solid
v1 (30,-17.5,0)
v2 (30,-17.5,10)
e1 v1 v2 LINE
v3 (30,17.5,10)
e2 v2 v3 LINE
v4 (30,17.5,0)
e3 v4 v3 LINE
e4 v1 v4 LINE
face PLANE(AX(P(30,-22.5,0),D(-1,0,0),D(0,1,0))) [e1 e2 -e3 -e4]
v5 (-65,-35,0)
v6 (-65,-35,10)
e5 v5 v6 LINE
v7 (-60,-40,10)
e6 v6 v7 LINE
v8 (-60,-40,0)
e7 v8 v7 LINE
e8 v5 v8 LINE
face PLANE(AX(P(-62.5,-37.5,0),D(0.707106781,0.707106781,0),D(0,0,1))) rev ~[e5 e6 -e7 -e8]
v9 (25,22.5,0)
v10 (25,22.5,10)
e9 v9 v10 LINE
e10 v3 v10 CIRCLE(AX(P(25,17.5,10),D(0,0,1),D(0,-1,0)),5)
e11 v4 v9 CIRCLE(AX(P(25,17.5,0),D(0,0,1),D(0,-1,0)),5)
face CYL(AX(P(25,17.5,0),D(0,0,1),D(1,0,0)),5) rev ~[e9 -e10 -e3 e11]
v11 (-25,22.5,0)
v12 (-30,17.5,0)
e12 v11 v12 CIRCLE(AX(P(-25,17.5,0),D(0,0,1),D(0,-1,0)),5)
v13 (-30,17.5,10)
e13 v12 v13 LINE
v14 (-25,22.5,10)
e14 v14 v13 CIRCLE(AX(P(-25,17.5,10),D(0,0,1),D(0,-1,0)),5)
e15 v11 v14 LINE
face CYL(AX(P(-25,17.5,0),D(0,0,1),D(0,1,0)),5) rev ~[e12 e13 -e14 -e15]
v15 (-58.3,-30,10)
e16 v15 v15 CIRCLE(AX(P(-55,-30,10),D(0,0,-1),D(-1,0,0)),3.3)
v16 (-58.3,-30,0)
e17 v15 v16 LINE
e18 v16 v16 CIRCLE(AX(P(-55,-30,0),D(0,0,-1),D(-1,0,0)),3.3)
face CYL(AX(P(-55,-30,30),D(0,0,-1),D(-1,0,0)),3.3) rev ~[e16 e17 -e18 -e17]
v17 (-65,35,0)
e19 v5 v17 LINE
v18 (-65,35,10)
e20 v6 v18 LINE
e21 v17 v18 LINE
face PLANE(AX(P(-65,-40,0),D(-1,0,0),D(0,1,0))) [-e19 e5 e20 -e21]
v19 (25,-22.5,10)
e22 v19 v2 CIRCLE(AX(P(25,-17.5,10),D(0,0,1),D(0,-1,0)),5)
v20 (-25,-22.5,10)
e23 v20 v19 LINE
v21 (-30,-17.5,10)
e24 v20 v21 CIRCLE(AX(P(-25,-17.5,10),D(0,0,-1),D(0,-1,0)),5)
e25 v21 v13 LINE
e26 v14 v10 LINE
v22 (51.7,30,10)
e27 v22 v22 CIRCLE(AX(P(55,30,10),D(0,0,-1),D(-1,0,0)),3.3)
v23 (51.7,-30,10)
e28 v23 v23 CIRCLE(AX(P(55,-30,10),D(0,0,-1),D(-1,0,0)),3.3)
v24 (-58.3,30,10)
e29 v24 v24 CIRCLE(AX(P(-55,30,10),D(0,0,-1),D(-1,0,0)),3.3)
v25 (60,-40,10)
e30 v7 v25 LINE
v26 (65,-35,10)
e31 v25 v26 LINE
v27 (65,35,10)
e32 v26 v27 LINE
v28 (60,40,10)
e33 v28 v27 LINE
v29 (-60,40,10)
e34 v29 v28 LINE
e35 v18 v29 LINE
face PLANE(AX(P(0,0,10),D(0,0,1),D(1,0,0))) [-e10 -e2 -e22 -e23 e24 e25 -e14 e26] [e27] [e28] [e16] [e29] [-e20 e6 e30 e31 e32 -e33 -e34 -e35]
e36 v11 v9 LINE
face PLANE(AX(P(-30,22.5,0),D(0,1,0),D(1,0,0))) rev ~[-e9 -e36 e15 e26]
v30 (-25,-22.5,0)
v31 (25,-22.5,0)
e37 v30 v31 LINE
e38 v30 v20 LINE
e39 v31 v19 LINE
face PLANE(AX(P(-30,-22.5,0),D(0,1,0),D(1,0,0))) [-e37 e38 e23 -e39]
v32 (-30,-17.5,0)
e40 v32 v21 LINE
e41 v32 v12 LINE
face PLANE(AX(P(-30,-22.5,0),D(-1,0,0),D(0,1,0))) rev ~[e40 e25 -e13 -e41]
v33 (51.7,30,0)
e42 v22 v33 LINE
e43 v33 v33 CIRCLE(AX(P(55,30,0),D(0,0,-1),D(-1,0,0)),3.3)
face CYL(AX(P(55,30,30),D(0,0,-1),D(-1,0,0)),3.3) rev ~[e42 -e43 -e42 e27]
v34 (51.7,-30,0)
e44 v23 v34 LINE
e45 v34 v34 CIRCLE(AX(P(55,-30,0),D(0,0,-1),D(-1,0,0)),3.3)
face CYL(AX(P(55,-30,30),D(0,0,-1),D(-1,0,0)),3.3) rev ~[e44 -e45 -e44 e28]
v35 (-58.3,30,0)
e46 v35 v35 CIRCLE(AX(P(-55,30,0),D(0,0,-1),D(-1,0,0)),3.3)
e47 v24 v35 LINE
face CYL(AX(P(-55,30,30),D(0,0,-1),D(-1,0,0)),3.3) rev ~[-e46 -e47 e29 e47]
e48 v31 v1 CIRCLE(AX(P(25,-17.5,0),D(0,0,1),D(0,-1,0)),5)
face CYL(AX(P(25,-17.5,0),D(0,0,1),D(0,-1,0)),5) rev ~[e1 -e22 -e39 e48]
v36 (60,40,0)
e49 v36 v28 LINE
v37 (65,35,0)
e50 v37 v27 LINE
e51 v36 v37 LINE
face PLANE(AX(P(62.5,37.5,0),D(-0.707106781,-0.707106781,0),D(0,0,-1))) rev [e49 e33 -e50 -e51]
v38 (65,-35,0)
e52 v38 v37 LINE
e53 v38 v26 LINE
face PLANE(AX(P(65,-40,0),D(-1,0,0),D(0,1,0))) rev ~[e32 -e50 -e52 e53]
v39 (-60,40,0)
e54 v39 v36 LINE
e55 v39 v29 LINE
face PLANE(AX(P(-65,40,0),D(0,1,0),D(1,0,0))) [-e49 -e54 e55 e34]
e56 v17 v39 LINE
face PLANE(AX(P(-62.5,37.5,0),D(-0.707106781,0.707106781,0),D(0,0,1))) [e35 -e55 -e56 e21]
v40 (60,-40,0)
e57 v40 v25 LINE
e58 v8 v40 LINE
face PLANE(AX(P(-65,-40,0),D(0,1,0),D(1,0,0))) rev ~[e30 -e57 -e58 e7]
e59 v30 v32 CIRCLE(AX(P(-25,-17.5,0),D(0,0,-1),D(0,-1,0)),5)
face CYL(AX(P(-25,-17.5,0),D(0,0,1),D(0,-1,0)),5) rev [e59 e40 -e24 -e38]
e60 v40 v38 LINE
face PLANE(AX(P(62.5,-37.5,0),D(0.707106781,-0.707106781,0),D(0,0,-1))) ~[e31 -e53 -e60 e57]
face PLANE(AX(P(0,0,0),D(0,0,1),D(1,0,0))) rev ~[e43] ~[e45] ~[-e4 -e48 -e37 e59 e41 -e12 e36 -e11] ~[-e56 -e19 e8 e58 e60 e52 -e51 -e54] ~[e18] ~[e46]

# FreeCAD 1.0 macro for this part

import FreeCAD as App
import Part
import Sketcher
from FreeCAD import Vector
Q = App.Units.Quantity


def edges_at(feature, points):
    """Names of the edges that pass closest to the given points."""
    edges = feature.Shape.Edges
    near = lambda p: min(range(len(edges)), key=lambda i: edges[i].distToShape(Part.Vertex(*p))[0])
    return sorted({f"Edge{near(p) + 1}" for p in points})


def add_polygon(sketch, points):
    """Adds a closed chain of lines whose ends are joined by coincident constraints."""
    first, n = sketch.GeometryCount, len(points)
    for a, b in zip(points, points[1:] + points[:1]):
        sketch.addGeometry(Part.LineSegment(App.Vector(*a, 0), App.Vector(*b, 0)), False)
    for i in range(n):
        sketch.addConstraint(Sketcher.Constraint("Coincident", first + i, 2, first + (i + 1) % n, 1))

doc = App.newDocument("Part")
body = doc.addObject("PartDesign::Body", "Body")

sketch1 = body.newObject("Sketcher::SketchObject", "Sketch")
sketch1.AttachmentSupport = (doc.getObject("XY_Plane"), [""])
sketch1.MapMode = "FlatFace"
add_polygon(sketch1, [(-65, 40), (-65, -40), (65, -40), (65, 40)])
add_polygon(sketch1, [(30, -22), (-30, -22), (-30, 22), (30, 22)])
sketch1.addConstraint(Sketcher.Constraint("Vertical", 0))
sketch1.addConstraint(Sketcher.Constraint("Horizontal", 1))
sketch1.addConstraint(Sketcher.Constraint("Vertical", 2))
sketch1.addConstraint(Sketcher.Constraint("Horizontal", 3))
sketch1.addConstraint(Sketcher.Constraint("Horizontal", 4))
sketch1.addConstraint(Sketcher.Constraint("Vertical", 5))
sketch1.addConstraint(Sketcher.Constraint("Horizontal", 6))
sketch1.addConstraint(Sketcher.Constraint("Vertical", 7))
sketch1.addConstraint(Sketcher.Constraint("Symmetric", 0, 2, 2, 2, -1, 1))
sketch1.addConstraint(Sketcher.Constraint("Symmetric", 4, 2, 6, 2, -1, 1))
sketch1.addConstraint(Sketcher.Constraint("DistanceX", 1, 1, 1, 2, Q("130 mm")))
sketch1.addConstraint(Sketcher.Constraint("DistanceX", 4, 2, 4, 1, Q("60 mm")))
sketch1.addConstraint(Sketcher.Constraint("DistanceY", 0, 2, 0, 1, Q("80 mm")))
sketch1.addConstraint(Sketcher.Constraint("DistanceY", 5, 1, 5, 2, Q("45 mm")))
pad1 = body.newObject("PartDesign::Pad", "Pad")
pad1.Profile = sketch1
pad1.Length = 10
doc.recompute()

fillet = body.newObject("PartDesign::Fillet", "Fillet")
fillet.Base = (pad1, edges_at(pad1, [
    (-30, 22.5, 5),
    (-30, -22.5, 5),
    (30, -22.5, 5),
    (30, 22.5, 5),
]))
fillet.Radius = 5
doc.recompute()

chamfer = body.newObject("PartDesign::Chamfer", "Chamfer")
chamfer.Base = (fillet, edges_at(fillet, [
    (-65, -40, 5),
    (-65, 40, 5),
    (65, -40, 5),
    (65, 40, 5),
]))
chamfer.Size = 5

sketch2 = body.newObject("Sketcher::SketchObject", "Sketch001")
sketch2.AttachmentSupport = (doc.getObject("XY_Plane"), [""])
sketch2.MapMode = "FlatFace"
sketch2.AttachmentOffset = App.Placement(Vector(0, 0, 10), App.Rotation())
sketch2.addGeometry(Part.Circle(Vector(-55, 30, 0), Vector(0, 0, 1), 3.3), False)
sketch2.addGeometry(Part.Circle(Vector(-55, -30, 0), Vector(0, 0, 1), 3.3), False)
sketch2.addGeometry(Part.Circle(Vector(55, -30, 0), Vector(0, 0, 1), 3.3), False)
sketch2.addGeometry(Part.Circle(Vector(55, 30, 0), Vector(0, 0, 1), 3.3), False)
sketch2.addConstraint(Sketcher.Constraint("Equal", 0, 1))
sketch2.addConstraint(Sketcher.Constraint("Equal", 1, 2))
sketch2.addConstraint(Sketcher.Constraint("Equal", 2, 3))
sketch2.addConstraint(Sketcher.Constraint("Symmetric", 0, 3, 2, 3, -1, 1))
sketch2.addConstraint(Sketcher.Constraint("Symmetric", 1, 3, 3, 3, -1, 1))
sketch2.addConstraint(Sketcher.Constraint("Symmetric", 1, 3, 2, 3, -2))
sketch2.addConstraint(Sketcher.Constraint("Diameter", 0, Q("6.6 mm")))
sketch2.addConstraint(Sketcher.Constraint("DistanceX", 0, 3, -1, 1, Q("55 mm")))
sketch2.addConstraint(Sketcher.Constraint("DistanceY", -1, 1, 0, 3, Q("30 mm")))
doc.recompute()
hole = body.newObject("PartDesign::Hole", "Hole")
hole.Profile = sketch2
hole.ThreadType = "None"
hole.Diameter = 6.6
hole.DepthType = "Dimension"
hole.Depth = 20
hole.DrillPoint = "Angled"
hole.DrillPointAngle = 118

doc.recompute()
